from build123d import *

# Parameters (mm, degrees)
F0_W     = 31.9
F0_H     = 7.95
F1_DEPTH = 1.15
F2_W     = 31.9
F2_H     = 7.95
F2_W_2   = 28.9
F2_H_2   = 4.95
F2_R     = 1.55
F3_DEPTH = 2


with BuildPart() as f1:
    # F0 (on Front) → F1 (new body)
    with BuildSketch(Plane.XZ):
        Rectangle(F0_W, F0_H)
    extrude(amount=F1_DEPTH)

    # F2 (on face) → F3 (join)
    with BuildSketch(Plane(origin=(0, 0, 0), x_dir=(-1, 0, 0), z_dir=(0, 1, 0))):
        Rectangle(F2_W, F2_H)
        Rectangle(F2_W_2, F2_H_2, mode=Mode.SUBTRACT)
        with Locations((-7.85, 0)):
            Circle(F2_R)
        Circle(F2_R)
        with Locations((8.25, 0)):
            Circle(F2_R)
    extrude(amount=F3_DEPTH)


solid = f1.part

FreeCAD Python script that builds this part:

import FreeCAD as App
import Part
import Sketcher

V = App.Vector

doc = App.newDocument("Part")
body = doc.addObject("PartDesign::Body", "Body")

sketch1 = doc.addObject("Sketcher::SketchObject", "Sketch")
body.addObject(sketch1)
sketch1.AttachmentSupport = (doc.XZ_Plane, [""])
sketch1.MapMode = "FlatFace"
sketch1.addGeometry(Part.LineSegment(V(-15.95, 3.975, 0), V(-15.95, -3.975, 0)), False)
sketch1.addGeometry(Part.LineSegment(V(-15.95, -3.975, 0), V(15.95, -3.975, 0)), False)
sketch1.addGeometry(Part.LineSegment(V(15.95, -3.975, 0), V(15.95, 3.975, 0)), False)
sketch1.addGeometry(Part.LineSegment(V(15.95, 3.975, 0), V(-15.95, 3.975, 0)), False)
sketch1.addConstraint(Sketcher.Constraint("Coincident", 0, 2, 1, 1))
sketch1.addConstraint(Sketcher.Constraint("Coincident", 1, 2, 2, 1))
sketch1.addConstraint(Sketcher.Constraint("Coincident", 2, 2, 3, 1))
sketch1.addConstraint(Sketcher.Constraint("Coincident", 3, 2, 0, 1))
sketch1.addConstraint(Sketcher.Constraint("Vertical", 0))
sketch1.addConstraint(Sketcher.Constraint("Horizontal", 1))
sketch1.addConstraint(Sketcher.Constraint("Vertical", 2))
sketch1.addConstraint(Sketcher.Constraint("Horizontal", 3))
sketch1.addConstraint(Sketcher.Constraint("Symmetric", 0, 2, 2, 2, -1, 1))
sketch1.addConstraint(Sketcher.Constraint("DistanceX", 1, 1, 1, 2, 31.9))
sketch1.addConstraint(Sketcher.Constraint("DistanceY", 0, 2, 0, 1, 7.95))
pad1 = doc.addObject("PartDesign::Pad", "Pad")
body.addObject(pad1)
pad1.Profile = sketch1
pad1.Length = 1.15

sketch2 = doc.addObject("Sketcher::SketchObject", "Sketch001")
body.addObject(sketch2)
sketch2.AttachmentSupport = (doc.XZ_Plane, [""])
sketch2.MapMode = "FlatFace"
sketch2.addGeometry(Part.LineSegment(V(15.95, 3.975, 0), V(15.95, -3.975, 0)), False)
sketch2.addGeometry(Part.LineSegment(V(15.95, -3.975, 0), V(-15.95, -3.975, 0)), False)
sketch2.addGeometry(Part.LineSegment(V(-15.95, -3.975, 0), V(-15.95, 3.975, 0)), False)
sketch2.addGeometry(Part.LineSegment(V(-15.95, 3.975, 0), V(15.95, 3.975, 0)), False)
sketch2.addGeometry(Part.LineSegment(V(-14.45, -2.475, 0), V(14.45, -2.475, 0)), False)
sketch2.addGeometry(Part.LineSegment(V(14.45, -2.475, 0), V(14.45, 2.475, 0)), False)
sketch2.addGeometry(Part.LineSegment(V(14.45, 2.475, 0), V(-14.45, 2.475, 0)), False)
sketch2.addGeometry(Part.LineSegment(V(-14.45, 2.475, 0), V(-14.45, -2.475, 0)), False)
sketch2.addGeometry(Part.Circle(V(7.85, 0, 0), V(0, 0, 1), 1.55), False)
sketch2.addGeometry(Part.Circle(V(0, 0, 0), V(0, 0, 1), 1.55), False)
sketch2.addGeometry(Part.Circle(V(-8.25, 0, 0), V(0, 0, 1), 1.55), False)
sketch2.addConstraint(Sketcher.Constraint("Coincident", 0, 2, 1, 1))
sketch2.addConstraint(Sketcher.Constraint("Coincident", 1, 2, 2, 1))
sketch2.addConstraint(Sketcher.Constraint("Coincident", 2, 2, 3, 1))
sketch2.addConstraint(Sketcher.Constraint("Coincident", 3, 2, 0, 1))
sketch2.addConstraint(Sketcher.Constraint("Coincident", 4, 2, 5, 1))
sketch2.addConstraint(Sketcher.Constraint("Coincident", 5, 2, 6, 1))
sketch2.addConstraint(Sketcher.Constraint("Coincident", 6, 2, 7, 1))
sketch2.addConstraint(Sketcher.Constraint("Coincident", 7, 2, 4, 1))
sketch2.addConstraint(Sketcher.Constraint("Vertical", 0))
sketch2.addConstraint(Sketcher.Constraint("Horizontal", 1))
sketch2.addConstraint(Sketcher.Constraint("Vertical", 2))
sketch2.addConstraint(Sketcher.Constraint("Horizontal", 3))
sketch2.addConstraint(Sketcher.Constraint("Horizontal", 4))
sketch2.addConstraint(Sketcher.Constraint("Vertical", 5))
sketch2.addConstraint(Sketcher.Constraint("Horizontal", 6))
sketch2.addConstraint(Sketcher.Constraint("Vertical", 7))
sketch2.addConstraint(Sketcher.Constraint("Coincident", 9, 3, -1, 1))
sketch2.addConstraint(Sketcher.Constraint("Equal", 8, 9))
sketch2.addConstraint(Sketcher.Constraint("Equal", 9, 10))
sketch2.addConstraint(Sketcher.Constraint("Symmetric", 0, 2, 2, 2, -1, 1))
sketch2.addConstraint(Sketcher.Constraint("Symmetric", 4, 2, 6, 2, -1, 1))
sketch2.addConstraint(Sketcher.Constraint("PointOnObject", 8, 3, -1))
sketch2.addConstraint(Sketcher.Constraint("PointOnObject", 10, 3, -1))
sketch2.addConstraint(Sketcher.Constraint("Diameter", 8, 3.1))
sketch2.addConstraint(Sketcher.Constraint("DistanceX", 1, 2, 1, 1, 31.9))
sketch2.addConstraint(Sketcher.Constraint("DistanceX", 4, 1, 4, 2, 28.9))
sketch2.addConstraint(Sketcher.Constraint("DistanceY", 0, 2, 0, 1, 7.95))
sketch2.addConstraint(Sketcher.Constraint("DistanceY", 5, 1, 5, 2, 4.95))
sketch2.addConstraint(Sketcher.Constraint("DistanceX", 10, 3, 8, 3, 16.1))
sketch2.addConstraint(Sketcher.Constraint("DistanceX", 8, 3, 0, 2, 8.1))
pad2 = doc.addObject("PartDesign::Pad", "Pad001")
body.addObject(pad2)
pad2.Profile = sketch2
pad2.Length = 2
pad2.Reversed = True

doc.recompute()
